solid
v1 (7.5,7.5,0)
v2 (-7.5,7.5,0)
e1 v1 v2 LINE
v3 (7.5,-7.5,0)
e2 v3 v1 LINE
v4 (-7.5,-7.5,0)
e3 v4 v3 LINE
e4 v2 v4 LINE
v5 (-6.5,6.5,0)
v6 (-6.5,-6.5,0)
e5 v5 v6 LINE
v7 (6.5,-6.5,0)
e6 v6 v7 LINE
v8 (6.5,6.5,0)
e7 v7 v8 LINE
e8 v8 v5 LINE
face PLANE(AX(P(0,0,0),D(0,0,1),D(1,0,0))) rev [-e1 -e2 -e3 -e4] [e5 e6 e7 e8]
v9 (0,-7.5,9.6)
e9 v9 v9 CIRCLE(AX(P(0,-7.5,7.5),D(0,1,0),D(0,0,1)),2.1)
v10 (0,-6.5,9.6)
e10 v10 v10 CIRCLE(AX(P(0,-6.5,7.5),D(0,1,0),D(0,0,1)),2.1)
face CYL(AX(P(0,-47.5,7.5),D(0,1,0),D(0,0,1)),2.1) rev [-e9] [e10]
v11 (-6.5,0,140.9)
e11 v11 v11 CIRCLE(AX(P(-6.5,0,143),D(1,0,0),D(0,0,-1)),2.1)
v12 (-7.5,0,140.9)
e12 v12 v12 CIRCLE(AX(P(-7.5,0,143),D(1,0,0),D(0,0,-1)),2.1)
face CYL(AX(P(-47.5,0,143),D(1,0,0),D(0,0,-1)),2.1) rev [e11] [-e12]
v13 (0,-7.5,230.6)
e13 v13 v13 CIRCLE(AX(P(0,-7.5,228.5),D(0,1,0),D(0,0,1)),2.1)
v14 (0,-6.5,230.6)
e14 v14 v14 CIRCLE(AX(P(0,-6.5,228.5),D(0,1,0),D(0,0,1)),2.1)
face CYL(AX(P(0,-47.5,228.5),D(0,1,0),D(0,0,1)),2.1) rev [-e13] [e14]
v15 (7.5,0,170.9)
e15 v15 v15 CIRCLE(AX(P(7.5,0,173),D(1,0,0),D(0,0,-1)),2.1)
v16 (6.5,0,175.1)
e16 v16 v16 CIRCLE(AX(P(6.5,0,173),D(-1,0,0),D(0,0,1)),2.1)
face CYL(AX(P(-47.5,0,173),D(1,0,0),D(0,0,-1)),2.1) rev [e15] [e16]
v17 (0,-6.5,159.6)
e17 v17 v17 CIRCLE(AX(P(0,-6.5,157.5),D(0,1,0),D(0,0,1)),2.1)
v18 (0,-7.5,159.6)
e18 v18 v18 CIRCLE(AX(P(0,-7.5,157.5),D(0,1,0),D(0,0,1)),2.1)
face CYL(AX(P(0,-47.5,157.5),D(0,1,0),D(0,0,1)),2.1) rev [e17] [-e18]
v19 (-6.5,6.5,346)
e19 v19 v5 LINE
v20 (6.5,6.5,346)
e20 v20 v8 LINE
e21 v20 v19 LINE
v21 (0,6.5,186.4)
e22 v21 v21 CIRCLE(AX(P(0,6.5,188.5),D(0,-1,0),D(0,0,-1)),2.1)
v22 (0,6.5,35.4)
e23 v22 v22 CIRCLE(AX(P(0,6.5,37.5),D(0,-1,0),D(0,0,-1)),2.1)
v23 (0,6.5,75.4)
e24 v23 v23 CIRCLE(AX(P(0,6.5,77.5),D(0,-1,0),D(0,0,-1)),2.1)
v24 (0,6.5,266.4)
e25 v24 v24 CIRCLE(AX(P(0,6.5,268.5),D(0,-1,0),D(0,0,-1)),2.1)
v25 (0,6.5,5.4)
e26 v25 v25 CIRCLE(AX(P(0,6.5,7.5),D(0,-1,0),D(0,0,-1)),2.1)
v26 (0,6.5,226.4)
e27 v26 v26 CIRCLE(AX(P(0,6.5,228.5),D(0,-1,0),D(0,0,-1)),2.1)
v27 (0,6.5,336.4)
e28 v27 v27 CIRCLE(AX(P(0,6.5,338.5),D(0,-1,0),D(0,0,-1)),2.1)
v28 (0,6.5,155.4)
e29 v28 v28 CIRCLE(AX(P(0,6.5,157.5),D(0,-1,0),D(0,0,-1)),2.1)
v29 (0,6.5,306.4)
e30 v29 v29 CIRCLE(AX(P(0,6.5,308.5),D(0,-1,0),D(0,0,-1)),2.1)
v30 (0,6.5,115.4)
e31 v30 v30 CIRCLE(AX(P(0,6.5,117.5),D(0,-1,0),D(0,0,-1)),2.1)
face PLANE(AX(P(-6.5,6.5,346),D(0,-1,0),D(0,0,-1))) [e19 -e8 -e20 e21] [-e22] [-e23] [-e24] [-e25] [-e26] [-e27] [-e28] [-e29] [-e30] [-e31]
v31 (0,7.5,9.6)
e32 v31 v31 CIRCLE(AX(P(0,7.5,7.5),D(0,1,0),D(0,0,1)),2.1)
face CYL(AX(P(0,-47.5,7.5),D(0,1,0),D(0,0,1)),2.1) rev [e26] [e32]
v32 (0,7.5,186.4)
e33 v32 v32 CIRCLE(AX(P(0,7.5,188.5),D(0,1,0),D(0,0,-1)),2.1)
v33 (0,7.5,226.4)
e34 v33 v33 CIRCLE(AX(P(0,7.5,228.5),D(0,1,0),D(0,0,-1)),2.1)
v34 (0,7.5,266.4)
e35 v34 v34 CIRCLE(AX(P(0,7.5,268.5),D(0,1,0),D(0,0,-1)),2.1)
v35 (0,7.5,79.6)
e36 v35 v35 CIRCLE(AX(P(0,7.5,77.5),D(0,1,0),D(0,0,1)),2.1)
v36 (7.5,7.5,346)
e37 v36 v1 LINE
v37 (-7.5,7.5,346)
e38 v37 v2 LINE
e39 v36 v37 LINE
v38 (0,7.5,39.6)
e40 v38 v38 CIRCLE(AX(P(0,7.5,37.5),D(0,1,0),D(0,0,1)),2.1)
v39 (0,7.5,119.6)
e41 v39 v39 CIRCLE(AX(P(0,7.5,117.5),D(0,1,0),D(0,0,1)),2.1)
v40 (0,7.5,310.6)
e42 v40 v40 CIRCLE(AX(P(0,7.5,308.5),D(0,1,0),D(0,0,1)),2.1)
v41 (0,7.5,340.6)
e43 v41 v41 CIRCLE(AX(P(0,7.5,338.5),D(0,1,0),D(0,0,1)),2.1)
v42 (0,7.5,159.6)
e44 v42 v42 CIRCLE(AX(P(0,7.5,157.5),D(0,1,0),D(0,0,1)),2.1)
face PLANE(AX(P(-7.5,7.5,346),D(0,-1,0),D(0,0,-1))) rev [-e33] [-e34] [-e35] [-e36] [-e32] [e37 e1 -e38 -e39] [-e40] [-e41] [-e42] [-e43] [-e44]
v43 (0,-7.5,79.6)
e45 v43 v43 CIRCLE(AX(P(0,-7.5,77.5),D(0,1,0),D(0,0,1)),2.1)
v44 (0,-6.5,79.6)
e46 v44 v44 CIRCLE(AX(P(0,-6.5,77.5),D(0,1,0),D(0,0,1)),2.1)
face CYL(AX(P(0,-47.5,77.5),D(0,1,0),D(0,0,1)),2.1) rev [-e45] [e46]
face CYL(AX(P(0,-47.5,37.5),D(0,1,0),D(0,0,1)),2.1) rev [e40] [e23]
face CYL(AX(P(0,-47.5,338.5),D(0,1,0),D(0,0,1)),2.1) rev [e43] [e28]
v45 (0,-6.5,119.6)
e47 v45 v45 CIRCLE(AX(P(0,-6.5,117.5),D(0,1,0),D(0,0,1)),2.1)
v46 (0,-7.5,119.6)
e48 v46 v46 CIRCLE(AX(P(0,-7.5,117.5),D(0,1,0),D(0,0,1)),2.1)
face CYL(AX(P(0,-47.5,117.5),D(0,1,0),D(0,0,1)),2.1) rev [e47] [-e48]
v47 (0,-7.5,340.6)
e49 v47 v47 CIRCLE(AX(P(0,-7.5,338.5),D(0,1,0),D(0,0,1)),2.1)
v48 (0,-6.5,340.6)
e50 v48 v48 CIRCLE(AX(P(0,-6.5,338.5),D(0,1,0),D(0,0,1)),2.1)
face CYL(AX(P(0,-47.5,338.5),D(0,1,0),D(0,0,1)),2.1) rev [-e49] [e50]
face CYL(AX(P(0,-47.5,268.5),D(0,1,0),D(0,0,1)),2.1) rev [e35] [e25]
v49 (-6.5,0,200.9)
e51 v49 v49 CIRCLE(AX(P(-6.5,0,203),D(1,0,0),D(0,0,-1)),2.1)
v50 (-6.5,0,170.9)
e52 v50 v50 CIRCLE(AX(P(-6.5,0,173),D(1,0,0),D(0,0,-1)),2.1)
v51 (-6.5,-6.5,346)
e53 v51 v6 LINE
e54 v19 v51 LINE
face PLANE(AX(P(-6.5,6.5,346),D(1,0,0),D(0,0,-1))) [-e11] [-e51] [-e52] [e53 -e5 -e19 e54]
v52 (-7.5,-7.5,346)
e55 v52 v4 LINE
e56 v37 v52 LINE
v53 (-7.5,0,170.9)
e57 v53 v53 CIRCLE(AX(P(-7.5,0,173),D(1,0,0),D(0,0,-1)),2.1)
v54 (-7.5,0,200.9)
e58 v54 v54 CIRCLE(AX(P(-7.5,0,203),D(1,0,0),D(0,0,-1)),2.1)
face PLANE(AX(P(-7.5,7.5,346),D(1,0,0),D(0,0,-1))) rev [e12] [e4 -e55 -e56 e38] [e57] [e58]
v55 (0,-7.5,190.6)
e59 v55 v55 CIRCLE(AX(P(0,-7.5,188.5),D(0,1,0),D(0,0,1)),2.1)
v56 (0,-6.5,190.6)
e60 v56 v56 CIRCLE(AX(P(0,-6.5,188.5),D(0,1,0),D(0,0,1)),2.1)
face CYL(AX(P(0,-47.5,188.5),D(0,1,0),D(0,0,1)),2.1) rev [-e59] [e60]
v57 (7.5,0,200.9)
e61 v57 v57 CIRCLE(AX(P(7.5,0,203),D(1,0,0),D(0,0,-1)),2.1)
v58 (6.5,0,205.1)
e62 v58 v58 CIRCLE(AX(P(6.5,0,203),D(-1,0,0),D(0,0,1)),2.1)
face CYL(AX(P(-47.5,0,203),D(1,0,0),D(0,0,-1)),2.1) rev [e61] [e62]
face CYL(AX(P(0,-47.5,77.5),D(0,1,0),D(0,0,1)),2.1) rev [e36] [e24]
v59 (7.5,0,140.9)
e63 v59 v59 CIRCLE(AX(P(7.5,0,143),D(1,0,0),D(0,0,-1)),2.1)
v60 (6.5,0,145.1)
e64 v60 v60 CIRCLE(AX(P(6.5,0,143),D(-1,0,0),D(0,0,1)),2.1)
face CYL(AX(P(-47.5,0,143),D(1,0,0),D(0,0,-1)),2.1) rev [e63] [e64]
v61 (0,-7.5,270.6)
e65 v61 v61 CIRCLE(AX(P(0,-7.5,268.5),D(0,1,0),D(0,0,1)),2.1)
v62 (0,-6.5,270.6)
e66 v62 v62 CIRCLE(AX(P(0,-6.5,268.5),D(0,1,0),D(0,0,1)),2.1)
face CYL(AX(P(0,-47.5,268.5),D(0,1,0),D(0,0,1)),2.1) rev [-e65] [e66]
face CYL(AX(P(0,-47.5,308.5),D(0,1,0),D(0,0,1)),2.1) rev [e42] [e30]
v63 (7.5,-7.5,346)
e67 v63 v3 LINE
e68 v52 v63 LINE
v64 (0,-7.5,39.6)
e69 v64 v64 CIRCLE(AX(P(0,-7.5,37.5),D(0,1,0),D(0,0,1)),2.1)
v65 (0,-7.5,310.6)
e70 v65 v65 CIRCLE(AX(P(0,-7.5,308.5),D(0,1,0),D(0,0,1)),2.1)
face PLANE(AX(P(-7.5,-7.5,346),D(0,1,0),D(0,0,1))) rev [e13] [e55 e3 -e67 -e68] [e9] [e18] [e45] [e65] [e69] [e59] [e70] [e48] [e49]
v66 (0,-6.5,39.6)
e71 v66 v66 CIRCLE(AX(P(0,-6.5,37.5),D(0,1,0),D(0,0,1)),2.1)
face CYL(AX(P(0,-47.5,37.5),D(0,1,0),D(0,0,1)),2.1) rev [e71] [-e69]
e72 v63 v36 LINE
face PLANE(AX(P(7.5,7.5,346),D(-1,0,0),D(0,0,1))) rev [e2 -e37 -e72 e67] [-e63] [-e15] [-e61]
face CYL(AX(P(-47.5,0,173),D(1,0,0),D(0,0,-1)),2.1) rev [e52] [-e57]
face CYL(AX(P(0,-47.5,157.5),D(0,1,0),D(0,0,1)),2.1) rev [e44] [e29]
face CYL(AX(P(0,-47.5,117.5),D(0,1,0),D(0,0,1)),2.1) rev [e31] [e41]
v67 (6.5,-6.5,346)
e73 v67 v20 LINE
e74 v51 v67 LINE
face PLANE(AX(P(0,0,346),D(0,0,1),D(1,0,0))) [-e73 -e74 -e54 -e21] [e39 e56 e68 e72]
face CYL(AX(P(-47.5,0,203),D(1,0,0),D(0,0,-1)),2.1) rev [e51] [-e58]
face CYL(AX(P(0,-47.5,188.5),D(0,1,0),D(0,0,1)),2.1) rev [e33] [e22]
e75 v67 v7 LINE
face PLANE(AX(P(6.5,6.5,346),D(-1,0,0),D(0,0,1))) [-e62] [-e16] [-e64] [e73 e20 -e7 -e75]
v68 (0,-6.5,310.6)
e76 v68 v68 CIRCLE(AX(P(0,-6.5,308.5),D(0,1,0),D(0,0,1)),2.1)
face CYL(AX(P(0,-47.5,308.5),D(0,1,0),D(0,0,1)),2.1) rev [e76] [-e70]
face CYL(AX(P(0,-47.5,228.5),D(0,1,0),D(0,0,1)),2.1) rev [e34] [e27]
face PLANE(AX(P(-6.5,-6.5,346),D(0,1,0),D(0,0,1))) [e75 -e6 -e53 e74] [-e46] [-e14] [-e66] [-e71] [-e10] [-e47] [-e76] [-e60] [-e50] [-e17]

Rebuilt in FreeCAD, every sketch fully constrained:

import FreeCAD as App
import Part
import Sketcher

V = App.Vector
Q = App.Units.Quantity

doc = App.newDocument("Part")
body = doc.addObject("PartDesign::Body", "Body")

# Sketch on XY plane
sketch1 = doc.addObject("Sketcher::SketchObject", "Sketch")
body.addObject(sketch1)
sketch1.AttachmentSupport = (doc.XY_Plane, [""])
sketch1.MapMode = "FlatFace"
sketch1.addGeometry(Part.LineSegment(V(-7.5, 7.5, 0), V(-7.5, -7.5, 0)), False)
sketch1.addGeometry(Part.LineSegment(V(-7.5, -7.5, 0), V(7.5, -7.5, 0)), False)
sketch1.addGeometry(Part.LineSegment(V(7.5, -7.5, 0), V(7.5, 7.5, 0)), False)
sketch1.addGeometry(Part.LineSegment(V(7.5, 7.5, 0), V(-7.5, 7.5, 0)), False)
sketch1.addGeometry(Part.LineSegment(V(6.5, -6.5, 0), V(-6.5, -6.5, 0)), False)
sketch1.addGeometry(Part.LineSegment(V(-6.5, -6.5, 0), V(-6.5, 6.5, 0)), False)
sketch1.addGeometry(Part.LineSegment(V(-6.5, 6.5, 0), V(6.5, 6.5, 0)), False)
sketch1.addGeometry(Part.LineSegment(V(6.5, 6.5, 0), V(6.5, -6.5, 0)), False)
sketch1.addConstraint(Sketcher.Constraint("Coincident", 0, 2, 1, 1))
sketch1.addConstraint(Sketcher.Constraint("Coincident", 1, 2, 2, 1))
sketch1.addConstraint(Sketcher.Constraint("Coincident", 2, 2, 3, 1))
sketch1.addConstraint(Sketcher.Constraint("Coincident", 3, 2, 0, 1))
sketch1.addConstraint(Sketcher.Constraint("Coincident", 4, 2, 5, 1))
sketch1.addConstraint(Sketcher.Constraint("Coincident", 5, 2, 6, 1))
sketch1.addConstraint(Sketcher.Constraint("Coincident", 6, 2, 7, 1))
sketch1.addConstraint(Sketcher.Constraint("Coincident", 7, 2, 4, 1))
sketch1.addConstraint(Sketcher.Constraint("Vertical", 0))
sketch1.addConstraint(Sketcher.Constraint("Horizontal", 1))
sketch1.addConstraint(Sketcher.Constraint("Vertical", 2))
sketch1.addConstraint(Sketcher.Constraint("Horizontal", 3))
sketch1.addConstraint(Sketcher.Constraint("Horizontal", 4))
sketch1.addConstraint(Sketcher.Constraint("Vertical", 5))
sketch1.addConstraint(Sketcher.Constraint("Horizontal", 6))
sketch1.addConstraint(Sketcher.Constraint("Vertical", 7))
sketch1.addConstraint(Sketcher.Constraint("Symmetric", 0, 2, 2, 2, -1, 1))
sketch1.addConstraint(Sketcher.Constraint("Symmetric", 4, 2, 6, 2, -1, 1))
sketch1.addConstraint(Sketcher.Constraint("Equal", 3, 0))
sketch1.addConstraint(Sketcher.Constraint("Equal", 6, 5))
sketch1.addConstraint(Sketcher.Constraint("DistanceX", 1, 1, 1, 2, Q("15 mm")))
sketch1.addConstraint(Sketcher.Constraint("DistanceX", 4, 2, 4, 1, Q("13 mm")))
pad1 = doc.addObject("PartDesign::Pad", "Pad")
body.addObject(pad1)
pad1.Profile = sketch1
pad1.Length = 346

# Sketch on XZ plane
sketch2 = doc.addObject("Sketcher::SketchObject", "Sketch001")
body.addObject(sketch2)
sketch2.AttachmentSupport = (doc.XZ_Plane, [""])
sketch2.MapMode = "FlatFace"
sketch2.AttachmentOffset = App.Placement(V(0, 0, -7.5), App.Rotation())
sketch2.addGeometry(Part.Circle(V(0, 338.5, 0), V(0, 0, 1), 2.1), False)
sketch2.addGeometry(Part.Circle(V(0, 7.5, 0), V(0, 0, 1), 2.1), False)
sketch2.addGeometry(Part.Circle(V(0, 37.5, 0), V(0, 0, 1), 2.1), False)
sketch2.addGeometry(Part.Circle(V(0, 308.5, 0), V(0, 0, 1), 2.1), False)
sketch2.addGeometry(Part.Circle(V(0, 77.5, 0), V(0, 0, 1), 2.1), False)
sketch2.addGeometry(Part.Circle(V(0, 117.5, 0), V(0, 0, 1), 2.1), False)
sketch2.addGeometry(Part.Circle(V(0, 228.5, 0), V(0, 0, 1), 2.1), False)
sketch2.addGeometry(Part.Circle(V(0, 268.5, 0), V(0, 0, 1), 2.1), False)
sketch2.addGeometry(Part.Circle(V(0, 157.5, 0), V(0, 0, 1), 2.1), False)
sketch2.addGeometry(Part.Circle(V(0, 188.5, 0), V(0, 0, 1), 2.1), False)
sketch2.addConstraint(Sketcher.Constraint("Equal", 0, 1))
sketch2.addConstraint(Sketcher.Constraint("Equal", 1, 2))
sketch2.addConstraint(Sketcher.Constraint("Equal", 2, 3))
sketch2.addConstraint(Sketcher.Constraint("Equal", 3, 4))
sketch2.addConstraint(Sketcher.Constraint("Equal", 4, 5))
sketch2.addConstraint(Sketcher.Constraint("Equal", 5, 6))
sketch2.addConstraint(Sketcher.Constraint("Equal", 6, 7))
sketch2.addConstraint(Sketcher.Constraint("Equal", 7, 8))
sketch2.addConstraint(Sketcher.Constraint("Equal", 8, 9))
sketch2.addConstraint(Sketcher.Constraint("PointOnObject", 0, 3, -2))
sketch2.addConstraint(Sketcher.Constraint("PointOnObject", 1, 3, -2))
sketch2.addConstraint(Sketcher.Constraint("PointOnObject", 2, 3, -2))
sketch2.addConstraint(Sketcher.Constraint("PointOnObject", 3, 3, -2))
sketch2.addConstraint(Sketcher.Constraint("PointOnObject", 4, 3, -2))
sketch2.addConstraint(Sketcher.Constraint("PointOnObject", 5, 3, -2))
sketch2.addConstraint(Sketcher.Constraint("PointOnObject", 6, 3, -2))
sketch2.addConstraint(Sketcher.Constraint("PointOnObject", 7, 3, -2))
sketch2.addConstraint(Sketcher.Constraint("PointOnObject", 8, 3, -2))
sketch2.addConstraint(Sketcher.Constraint("PointOnObject", 9, 3, -2))
sketch2.addConstraint(Sketcher.Constraint("Diameter", 0, Q("4.2 mm")))
sketch2.addConstraint(Sketcher.Constraint("DistanceY", 1, 3, 0, 3, Q("331 mm")))
sketch2.addConstraint(Sketcher.Constraint("DistanceY", 1, 3, 2, 3, Q("30 mm")))
sketch2.addConstraint(Sketcher.Constraint("DistanceY", 3, 3, 0, 3, Q("30 mm")))
sketch2.addConstraint(Sketcher.Constraint("DistanceY", 2, 3, 4, 3, Q("40 mm")))
sketch2.addConstraint(Sketcher.Constraint("DistanceY", 4, 3, 5, 3, Q("40 mm")))
sketch2.addConstraint(Sketcher.Constraint("DistanceY", 6, 3, 3, 3, Q("80 mm")))
sketch2.addConstraint(Sketcher.Constraint("DistanceY", 7, 3, 3, 3, Q("40 mm")))
sketch2.addConstraint(Sketcher.Constraint("DistanceY", 5, 3, 8, 3, Q("40 mm")))
sketch2.addConstraint(Sketcher.Constraint("DistanceY", 8, 3, 9, 3, Q("31 mm")))
sketch2.addConstraint(Sketcher.Constraint("DistanceY", -1, 1, 0, 3, Q("338.5 mm")))
pocket1 = doc.addObject("PartDesign::Pocket", "Pocket")
body.addObject(pocket1)
pocket1.Profile = sketch2
pocket1.Length = 55
pocket1.Reversed = True

# Sketch on YZ plane
sketch3 = doc.addObject("Sketcher::SketchObject", "Sketch002")
body.addObject(sketch3)
sketch3.AttachmentSupport = (doc.YZ_Plane, [""])
sketch3.MapMode = "FlatFace"
sketch3.AttachmentOffset = App.Placement(V(0, 0, 7.5), App.Rotation())
sketch3.addGeometry(Part.Circle(V(0, 173, 0), V(0, 0, 1), 2.1), False)
sketch3.addGeometry(Part.Circle(V(0, 203, 0), V(0, 0, 1), 2.1), False)
sketch3.addGeometry(Part.Circle(V(0, 143, 0), V(0, 0, 1), 2.1), False)
sketch3.addConstraint(Sketcher.Constraint("Equal", 0, 1))
sketch3.addConstraint(Sketcher.Constraint("Equal", 1, 2))
sketch3.addConstraint(Sketcher.Constraint("PointOnObject", 0, 3, -2))
sketch3.addConstraint(Sketcher.Constraint("PointOnObject", 1, 3, -2))
sketch3.addConstraint(Sketcher.Constraint("PointOnObject", 2, 3, -2))
sketch3.addConstraint(Sketcher.Constraint("Diameter", 0, Q("4.2 mm")))
sketch3.addConstraint(Sketcher.Constraint("DistanceY", -1, 1, 0, 3, Q("173 mm")))
sketch3.addConstraint(Sketcher.Constraint("DistanceY", -1, 1, 1, 3, Q("203 mm")))
sketch3.addConstraint(Sketcher.Constraint("DistanceY", -1, 1, 2, 3, Q("143 mm")))
pocket2 = doc.addObject("PartDesign::Pocket", "Pocket001")
body.addObject(pocket2)
pocket2.Profile = sketch3
pocket2.Length = 55

doc.recompute()
